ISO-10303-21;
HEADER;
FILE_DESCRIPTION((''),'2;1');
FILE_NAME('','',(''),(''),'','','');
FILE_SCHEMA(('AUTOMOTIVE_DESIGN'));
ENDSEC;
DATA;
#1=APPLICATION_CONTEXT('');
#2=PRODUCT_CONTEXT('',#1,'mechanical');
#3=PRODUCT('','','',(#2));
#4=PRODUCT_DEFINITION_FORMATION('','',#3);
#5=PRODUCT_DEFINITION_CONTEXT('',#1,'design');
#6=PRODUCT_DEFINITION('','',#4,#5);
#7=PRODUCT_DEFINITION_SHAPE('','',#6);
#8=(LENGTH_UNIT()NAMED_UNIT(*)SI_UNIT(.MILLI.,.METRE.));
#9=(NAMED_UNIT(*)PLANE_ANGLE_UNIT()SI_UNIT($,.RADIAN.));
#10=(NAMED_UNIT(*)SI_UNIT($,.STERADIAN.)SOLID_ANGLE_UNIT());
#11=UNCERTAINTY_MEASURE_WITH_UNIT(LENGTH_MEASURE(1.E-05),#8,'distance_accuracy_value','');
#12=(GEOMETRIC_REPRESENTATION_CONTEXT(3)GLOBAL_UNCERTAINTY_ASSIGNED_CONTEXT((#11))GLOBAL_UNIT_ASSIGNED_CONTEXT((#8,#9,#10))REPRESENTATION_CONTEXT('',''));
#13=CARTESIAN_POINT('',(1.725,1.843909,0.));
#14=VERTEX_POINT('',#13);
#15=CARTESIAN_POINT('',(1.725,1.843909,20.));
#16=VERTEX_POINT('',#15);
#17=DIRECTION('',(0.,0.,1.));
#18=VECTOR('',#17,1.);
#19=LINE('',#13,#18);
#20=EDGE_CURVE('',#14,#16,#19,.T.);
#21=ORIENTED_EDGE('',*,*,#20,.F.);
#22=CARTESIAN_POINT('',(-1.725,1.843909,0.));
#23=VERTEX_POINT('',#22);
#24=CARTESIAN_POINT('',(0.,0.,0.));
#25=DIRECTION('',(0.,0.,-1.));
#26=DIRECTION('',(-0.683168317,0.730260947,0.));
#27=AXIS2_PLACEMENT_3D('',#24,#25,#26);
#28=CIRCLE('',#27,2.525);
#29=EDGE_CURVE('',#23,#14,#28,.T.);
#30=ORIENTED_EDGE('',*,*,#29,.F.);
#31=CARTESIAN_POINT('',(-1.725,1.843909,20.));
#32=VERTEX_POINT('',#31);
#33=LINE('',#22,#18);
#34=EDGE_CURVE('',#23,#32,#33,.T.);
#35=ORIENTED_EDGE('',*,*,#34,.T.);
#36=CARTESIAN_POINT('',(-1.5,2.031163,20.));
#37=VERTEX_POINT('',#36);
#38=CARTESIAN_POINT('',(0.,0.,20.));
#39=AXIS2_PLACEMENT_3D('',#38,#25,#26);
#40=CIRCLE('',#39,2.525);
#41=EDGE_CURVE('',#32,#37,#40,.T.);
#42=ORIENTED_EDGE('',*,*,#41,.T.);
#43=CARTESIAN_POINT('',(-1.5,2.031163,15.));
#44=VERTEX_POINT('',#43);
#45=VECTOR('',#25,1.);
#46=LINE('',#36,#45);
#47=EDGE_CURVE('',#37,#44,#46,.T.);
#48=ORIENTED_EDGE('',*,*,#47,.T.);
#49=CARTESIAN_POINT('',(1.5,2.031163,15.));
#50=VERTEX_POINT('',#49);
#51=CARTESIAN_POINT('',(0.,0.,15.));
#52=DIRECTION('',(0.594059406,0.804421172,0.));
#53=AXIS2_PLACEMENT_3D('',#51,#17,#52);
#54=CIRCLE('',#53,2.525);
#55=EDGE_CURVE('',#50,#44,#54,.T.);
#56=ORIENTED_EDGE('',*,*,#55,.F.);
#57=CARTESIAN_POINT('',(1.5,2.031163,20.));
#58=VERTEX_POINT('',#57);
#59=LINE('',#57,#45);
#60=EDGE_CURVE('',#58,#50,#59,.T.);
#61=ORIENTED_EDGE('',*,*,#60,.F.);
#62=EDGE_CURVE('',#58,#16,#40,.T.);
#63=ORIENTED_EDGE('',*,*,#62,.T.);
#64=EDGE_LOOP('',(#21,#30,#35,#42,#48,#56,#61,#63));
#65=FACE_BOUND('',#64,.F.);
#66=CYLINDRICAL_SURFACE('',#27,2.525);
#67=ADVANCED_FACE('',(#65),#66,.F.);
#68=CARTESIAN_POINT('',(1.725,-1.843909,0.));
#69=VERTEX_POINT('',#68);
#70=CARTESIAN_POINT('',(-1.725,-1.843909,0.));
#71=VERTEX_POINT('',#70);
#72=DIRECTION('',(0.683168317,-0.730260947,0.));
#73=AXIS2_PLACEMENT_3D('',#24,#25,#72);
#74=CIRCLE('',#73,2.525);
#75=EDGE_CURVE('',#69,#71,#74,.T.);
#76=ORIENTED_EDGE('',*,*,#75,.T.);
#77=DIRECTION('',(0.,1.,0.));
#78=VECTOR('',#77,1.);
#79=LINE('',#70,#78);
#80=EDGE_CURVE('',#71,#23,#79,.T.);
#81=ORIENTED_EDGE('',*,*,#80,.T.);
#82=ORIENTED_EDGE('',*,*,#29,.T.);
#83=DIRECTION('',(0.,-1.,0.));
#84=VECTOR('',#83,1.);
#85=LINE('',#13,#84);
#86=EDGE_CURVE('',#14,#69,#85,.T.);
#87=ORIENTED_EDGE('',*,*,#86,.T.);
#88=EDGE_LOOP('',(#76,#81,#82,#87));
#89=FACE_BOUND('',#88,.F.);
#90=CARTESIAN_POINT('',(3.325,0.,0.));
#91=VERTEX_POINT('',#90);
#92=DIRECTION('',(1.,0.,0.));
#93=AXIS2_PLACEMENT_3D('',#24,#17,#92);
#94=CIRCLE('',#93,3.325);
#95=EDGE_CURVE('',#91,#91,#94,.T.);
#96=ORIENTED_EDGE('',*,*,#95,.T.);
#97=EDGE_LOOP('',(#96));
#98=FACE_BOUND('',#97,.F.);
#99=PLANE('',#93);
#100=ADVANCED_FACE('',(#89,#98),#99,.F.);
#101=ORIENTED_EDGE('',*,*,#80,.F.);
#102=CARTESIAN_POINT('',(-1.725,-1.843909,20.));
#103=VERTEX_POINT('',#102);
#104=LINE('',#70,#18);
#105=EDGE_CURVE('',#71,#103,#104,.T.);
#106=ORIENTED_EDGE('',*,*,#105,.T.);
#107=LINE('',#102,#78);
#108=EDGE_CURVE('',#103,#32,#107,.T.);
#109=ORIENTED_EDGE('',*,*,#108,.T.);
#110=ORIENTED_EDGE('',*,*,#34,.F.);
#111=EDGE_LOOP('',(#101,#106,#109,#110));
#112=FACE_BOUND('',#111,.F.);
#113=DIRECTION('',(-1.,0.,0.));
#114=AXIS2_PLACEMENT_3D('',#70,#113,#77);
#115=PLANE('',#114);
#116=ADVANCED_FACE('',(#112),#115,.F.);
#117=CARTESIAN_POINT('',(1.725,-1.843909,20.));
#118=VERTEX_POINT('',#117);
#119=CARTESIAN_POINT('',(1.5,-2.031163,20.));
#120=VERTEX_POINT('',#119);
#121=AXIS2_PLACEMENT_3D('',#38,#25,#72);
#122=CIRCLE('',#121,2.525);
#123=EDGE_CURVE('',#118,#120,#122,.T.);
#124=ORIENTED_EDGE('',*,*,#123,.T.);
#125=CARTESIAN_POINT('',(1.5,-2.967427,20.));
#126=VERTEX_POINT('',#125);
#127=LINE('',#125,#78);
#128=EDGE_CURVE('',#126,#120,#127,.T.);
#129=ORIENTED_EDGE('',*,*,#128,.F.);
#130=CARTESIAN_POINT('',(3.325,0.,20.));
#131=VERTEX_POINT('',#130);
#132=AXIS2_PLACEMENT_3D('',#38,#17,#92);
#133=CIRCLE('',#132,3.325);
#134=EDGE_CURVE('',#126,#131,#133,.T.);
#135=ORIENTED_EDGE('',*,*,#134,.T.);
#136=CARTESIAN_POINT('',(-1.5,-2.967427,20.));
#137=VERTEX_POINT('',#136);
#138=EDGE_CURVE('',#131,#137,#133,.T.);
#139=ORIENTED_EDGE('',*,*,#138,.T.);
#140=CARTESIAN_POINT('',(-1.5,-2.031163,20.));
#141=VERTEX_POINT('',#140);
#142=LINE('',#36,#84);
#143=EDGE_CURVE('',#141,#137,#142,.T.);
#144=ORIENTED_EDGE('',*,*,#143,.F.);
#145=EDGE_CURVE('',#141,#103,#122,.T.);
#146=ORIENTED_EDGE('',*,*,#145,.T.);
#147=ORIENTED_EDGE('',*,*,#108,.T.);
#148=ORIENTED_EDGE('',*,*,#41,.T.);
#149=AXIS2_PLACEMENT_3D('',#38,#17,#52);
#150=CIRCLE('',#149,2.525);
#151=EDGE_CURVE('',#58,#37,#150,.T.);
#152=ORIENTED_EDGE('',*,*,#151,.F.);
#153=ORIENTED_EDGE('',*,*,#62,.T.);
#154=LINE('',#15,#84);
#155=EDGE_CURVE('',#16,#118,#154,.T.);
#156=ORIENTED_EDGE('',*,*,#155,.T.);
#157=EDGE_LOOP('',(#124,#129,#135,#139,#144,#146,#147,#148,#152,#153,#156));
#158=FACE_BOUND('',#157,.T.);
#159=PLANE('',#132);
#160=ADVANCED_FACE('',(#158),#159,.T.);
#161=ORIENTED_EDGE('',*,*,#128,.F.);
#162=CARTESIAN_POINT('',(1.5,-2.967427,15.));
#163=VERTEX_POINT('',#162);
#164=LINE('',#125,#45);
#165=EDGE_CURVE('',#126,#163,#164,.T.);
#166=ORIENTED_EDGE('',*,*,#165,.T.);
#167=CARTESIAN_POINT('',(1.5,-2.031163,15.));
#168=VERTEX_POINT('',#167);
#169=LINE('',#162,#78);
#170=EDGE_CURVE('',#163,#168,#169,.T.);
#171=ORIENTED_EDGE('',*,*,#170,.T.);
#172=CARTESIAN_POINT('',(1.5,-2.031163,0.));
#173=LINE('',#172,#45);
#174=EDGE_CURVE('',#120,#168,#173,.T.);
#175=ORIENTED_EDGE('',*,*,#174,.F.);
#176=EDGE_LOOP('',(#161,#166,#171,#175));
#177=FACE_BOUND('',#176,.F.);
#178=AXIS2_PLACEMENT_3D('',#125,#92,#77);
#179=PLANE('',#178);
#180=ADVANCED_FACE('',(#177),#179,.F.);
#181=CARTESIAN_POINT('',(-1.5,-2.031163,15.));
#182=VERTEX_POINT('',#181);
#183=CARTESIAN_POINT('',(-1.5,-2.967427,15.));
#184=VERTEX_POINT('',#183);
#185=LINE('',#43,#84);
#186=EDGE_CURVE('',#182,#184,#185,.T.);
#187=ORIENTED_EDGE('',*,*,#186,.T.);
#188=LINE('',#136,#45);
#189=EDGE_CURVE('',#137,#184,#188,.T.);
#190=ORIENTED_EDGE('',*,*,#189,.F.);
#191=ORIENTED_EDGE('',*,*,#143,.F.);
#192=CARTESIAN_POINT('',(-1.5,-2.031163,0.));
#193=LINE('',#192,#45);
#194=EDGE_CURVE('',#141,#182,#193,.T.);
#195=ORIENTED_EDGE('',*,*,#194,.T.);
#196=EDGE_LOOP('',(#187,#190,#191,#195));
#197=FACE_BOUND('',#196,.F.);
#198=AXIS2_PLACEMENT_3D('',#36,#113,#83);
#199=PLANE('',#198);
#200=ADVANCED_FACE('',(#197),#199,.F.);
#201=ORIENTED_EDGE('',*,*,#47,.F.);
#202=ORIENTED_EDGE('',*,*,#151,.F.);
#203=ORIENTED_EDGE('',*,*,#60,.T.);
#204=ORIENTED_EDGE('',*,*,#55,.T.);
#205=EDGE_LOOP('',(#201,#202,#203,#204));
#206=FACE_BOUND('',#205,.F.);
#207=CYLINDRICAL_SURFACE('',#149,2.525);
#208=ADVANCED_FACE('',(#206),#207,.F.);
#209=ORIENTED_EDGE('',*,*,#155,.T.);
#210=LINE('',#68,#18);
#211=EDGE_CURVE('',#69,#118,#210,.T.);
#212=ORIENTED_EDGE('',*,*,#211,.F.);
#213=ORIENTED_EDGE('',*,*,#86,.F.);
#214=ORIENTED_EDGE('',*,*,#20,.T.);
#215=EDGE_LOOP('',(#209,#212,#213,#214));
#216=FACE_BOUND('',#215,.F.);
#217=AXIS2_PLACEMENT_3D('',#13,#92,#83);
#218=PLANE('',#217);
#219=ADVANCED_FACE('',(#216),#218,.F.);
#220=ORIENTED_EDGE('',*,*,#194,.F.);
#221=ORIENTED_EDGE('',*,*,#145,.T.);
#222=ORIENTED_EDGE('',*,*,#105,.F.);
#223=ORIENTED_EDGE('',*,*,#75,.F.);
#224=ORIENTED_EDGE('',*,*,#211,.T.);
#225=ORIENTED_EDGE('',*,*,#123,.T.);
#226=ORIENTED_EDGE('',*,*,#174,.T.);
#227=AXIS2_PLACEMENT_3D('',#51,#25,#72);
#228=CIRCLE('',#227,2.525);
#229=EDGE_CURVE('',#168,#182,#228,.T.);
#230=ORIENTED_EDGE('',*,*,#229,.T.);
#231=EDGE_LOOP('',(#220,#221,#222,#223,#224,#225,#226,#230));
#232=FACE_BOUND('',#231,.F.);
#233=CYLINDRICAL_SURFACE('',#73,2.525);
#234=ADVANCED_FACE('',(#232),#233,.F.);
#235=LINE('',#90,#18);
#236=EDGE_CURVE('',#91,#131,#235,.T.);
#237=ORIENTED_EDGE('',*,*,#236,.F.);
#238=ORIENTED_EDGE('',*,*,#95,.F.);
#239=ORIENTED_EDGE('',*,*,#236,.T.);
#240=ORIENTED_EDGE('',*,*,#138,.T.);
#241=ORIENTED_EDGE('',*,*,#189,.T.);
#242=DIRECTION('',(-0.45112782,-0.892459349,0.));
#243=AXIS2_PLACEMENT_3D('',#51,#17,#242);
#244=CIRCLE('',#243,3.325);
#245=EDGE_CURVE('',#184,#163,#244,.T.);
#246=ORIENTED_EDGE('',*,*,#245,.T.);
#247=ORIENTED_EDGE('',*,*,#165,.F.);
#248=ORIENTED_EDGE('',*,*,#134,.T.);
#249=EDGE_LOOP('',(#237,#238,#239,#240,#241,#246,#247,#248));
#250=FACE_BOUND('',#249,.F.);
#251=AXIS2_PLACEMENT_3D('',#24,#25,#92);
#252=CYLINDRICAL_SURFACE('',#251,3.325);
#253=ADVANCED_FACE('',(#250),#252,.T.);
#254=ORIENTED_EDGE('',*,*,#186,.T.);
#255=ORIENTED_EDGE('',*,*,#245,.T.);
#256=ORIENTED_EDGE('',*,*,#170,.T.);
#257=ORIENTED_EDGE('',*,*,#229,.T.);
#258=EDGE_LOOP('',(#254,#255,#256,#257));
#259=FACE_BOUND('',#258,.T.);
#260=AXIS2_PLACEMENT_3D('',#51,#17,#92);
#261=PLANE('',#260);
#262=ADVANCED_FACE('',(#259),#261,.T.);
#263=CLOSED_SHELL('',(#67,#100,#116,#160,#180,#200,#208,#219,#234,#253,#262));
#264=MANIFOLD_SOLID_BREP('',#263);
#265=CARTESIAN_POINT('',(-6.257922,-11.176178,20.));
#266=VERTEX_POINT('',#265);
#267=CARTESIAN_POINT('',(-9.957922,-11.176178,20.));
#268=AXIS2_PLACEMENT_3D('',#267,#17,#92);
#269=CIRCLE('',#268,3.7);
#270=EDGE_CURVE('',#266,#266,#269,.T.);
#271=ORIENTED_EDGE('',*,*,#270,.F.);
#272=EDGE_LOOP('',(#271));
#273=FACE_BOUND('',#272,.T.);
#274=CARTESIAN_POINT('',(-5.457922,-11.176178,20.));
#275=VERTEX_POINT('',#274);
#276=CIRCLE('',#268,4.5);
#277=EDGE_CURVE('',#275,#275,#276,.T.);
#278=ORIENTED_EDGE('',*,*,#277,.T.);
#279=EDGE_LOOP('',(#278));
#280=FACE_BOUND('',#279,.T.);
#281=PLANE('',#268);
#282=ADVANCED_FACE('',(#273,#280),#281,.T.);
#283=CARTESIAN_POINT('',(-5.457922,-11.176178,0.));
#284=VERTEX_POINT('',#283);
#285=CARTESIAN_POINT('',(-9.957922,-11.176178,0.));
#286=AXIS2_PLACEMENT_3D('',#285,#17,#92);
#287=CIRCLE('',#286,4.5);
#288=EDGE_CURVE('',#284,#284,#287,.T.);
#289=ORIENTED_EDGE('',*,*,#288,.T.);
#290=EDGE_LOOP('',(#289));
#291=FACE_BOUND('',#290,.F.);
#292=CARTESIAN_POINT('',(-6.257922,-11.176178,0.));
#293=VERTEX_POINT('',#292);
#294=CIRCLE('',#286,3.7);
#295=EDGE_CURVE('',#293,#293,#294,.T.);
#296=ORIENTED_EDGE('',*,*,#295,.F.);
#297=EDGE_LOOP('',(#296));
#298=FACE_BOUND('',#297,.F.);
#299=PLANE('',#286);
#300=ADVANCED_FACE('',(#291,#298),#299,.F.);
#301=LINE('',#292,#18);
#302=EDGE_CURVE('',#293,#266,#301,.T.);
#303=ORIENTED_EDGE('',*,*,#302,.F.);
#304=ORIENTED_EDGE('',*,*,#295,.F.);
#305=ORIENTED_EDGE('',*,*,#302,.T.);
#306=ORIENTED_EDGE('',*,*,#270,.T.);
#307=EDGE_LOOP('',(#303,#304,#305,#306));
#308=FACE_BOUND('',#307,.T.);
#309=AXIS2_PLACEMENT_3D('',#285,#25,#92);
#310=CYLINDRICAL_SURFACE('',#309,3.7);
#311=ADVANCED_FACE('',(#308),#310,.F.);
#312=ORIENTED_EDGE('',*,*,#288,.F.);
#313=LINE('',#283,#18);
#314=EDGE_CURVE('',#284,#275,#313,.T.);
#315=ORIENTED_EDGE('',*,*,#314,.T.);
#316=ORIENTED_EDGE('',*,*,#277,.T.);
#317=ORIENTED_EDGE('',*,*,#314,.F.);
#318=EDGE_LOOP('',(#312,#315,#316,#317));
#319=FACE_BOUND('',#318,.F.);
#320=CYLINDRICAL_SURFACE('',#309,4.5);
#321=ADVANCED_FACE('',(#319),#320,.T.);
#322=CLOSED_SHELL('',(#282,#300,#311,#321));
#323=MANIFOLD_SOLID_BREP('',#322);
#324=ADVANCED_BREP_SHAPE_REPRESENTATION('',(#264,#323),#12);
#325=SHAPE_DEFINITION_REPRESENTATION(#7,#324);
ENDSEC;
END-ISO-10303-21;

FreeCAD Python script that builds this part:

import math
import FreeCAD as App
import Part
import Sketcher
Q = App.Units.Quantity

doc = App.newDocument("Part")
params = doc.addObject("Spreadsheet::Sheet", "Params")
for row, (alias, value) in enumerate([
    ("sketch1_diameter", "6.65 mm"),
    ("pad1_length", "20 mm"),
    ("pocket1_length", "5 mm"),
    ("sketch3_diameter", "9 mm"),
    ("sketch3_diameter2", "7.4 mm"),
    ("pad2_length", "20 mm"),
], start=1):
    params.set(f"A{row}", alias)
    params.set(f"B{row}", "=" + value)
    params.setAlias(f"B{row}", alias)

body = doc.addObject("PartDesign::Body", "Body")

sketch1 = body.newObject("Sketcher::SketchObject", "Sketch")
sketch1.AttachmentSupport = (doc.getObject("XY_Plane"), [""])
sketch1.MapMode = "FlatFace"
sketch1.addGeometry(Part.Circle(App.Vector(0, 0, 0), App.Vector(0, 0, 1), 3.3), False)
sketch1.addGeometry(Part.ArcOfCircle(Part.Circle(App.Vector(0, 0, 0), App.Vector(0, 0, 1), 2.5), math.radians(47), math.radians(133)), False)
sketch1.addGeometry(Part.LineSegment(App.Vector(1.7, 1.8, 0), App.Vector(1.7, -1.8, 0)), False)
sketch1.addGeometry(Part.ArcOfCircle(Part.Circle(App.Vector(0, 0, 0), App.Vector(0, 0, 1), 2.5), math.radians(-133), math.radians(-47)), False)
sketch1.addGeometry(Part.LineSegment(App.Vector(-1.7, -1.8, 0), App.Vector(-1.7, 1.8, 0)), False)
sketch1.addConstraint(Sketcher.Constraint("Coincident", 1, 1, 2, 1))
sketch1.addConstraint(Sketcher.Constraint("Coincident", 2, 2, 3, 2))
sketch1.addConstraint(Sketcher.Constraint("Coincident", 3, 1, 4, 1))
sketch1.addConstraint(Sketcher.Constraint("Coincident", 4, 2, 1, 2))
sketch1.addConstraint(Sketcher.Constraint("Vertical", 2))
sketch1.addConstraint(Sketcher.Constraint("Vertical", 4))
sketch1.addConstraint(Sketcher.Constraint("Coincident", 0, 3, -1, 1))
sketch1.addConstraint(Sketcher.Constraint("Coincident", 1, 3, -1, 1))
sketch1.addConstraint(Sketcher.Constraint("Coincident", 3, 3, -1, 1))
sketch1.addConstraint(Sketcher.Constraint("Equal", 1, 3))
sketch1.addConstraint(Sketcher.Constraint("Horizontal", 2, 2, 3, 1))
sketch1.addConstraint(Sketcher.Constraint("Diameter", 0, Q("6.65 mm")))
sketch1.addConstraint(Sketcher.Constraint("Radius", 1, Q("2.525 mm")))
sketch1.addConstraint(Sketcher.Constraint("DistanceX", 3, 1, 2, 2, Q("3.45 mm")))
sketch1.setExpression("Constraints[11]", "Params.sketch1_diameter")
pad1 = body.newObject("PartDesign::Pad", "Pad")
pad1.Profile = sketch1
pad1.setExpression("Length", "Params.pad1_length")

sketch2 = body.newObject("Sketcher::SketchObject", "Sketch001")
sketch2.AttachmentSupport = (doc.getObject("XY_Plane"), [""])
sketch2.MapMode = "FlatFace"
sketch2.AttachmentOffset = App.Placement(App.Vector(0, 0, 20), App.Rotation())
sketch2.addGeometry(Part.LineSegment(App.Vector(-1.5, 2, 0), App.Vector(-1.5, -3, 0)), False)
sketch2.addGeometry(Part.ArcOfCircle(Part.Circle(App.Vector(0, 0, 0), App.Vector(0, 0, 1), 3.3), math.radians(-117), math.radians(-63)), False)
sketch2.addGeometry(Part.LineSegment(App.Vector(1.5, -3, 0), App.Vector(1.5, 2, 0)), False)
sketch2.addGeometry(Part.ArcOfCircle(Part.Circle(App.Vector(0, 0, 0), App.Vector(0, 0, 1), 2.5), math.radians(54), math.radians(126)), False)
sketch2.addConstraint(Sketcher.Constraint("Coincident", 0, 2, 1, 1))
sketch2.addConstraint(Sketcher.Constraint("Coincident", 1, 2, 2, 1))
sketch2.addConstraint(Sketcher.Constraint("Coincident", 2, 2, 3, 1))
sketch2.addConstraint(Sketcher.Constraint("Coincident", 3, 2, 0, 1))
sketch2.addConstraint(Sketcher.Constraint("Vertical", 0))
sketch2.addConstraint(Sketcher.Constraint("Vertical", 2))
sketch2.addConstraint(Sketcher.Constraint("Coincident", 1, 3, -1, 1))
sketch2.addConstraint(Sketcher.Constraint("Coincident", 3, 3, -1, 1))
sketch2.addConstraint(Sketcher.Constraint("Horizontal", 0, 2, 1, 2))
sketch2.addConstraint(Sketcher.Constraint("Radius", 1, Q("3.325 mm")))
sketch2.addConstraint(Sketcher.Constraint("Radius", 3, Q("2.525 mm")))
sketch2.addConstraint(Sketcher.Constraint("DistanceX", 0, 2, 1, 2, Q("3 mm")))
pocket1 = body.newObject("PartDesign::Pocket", "Pocket")
pocket1.Profile = sketch2
pocket1.setExpression("Length", "Params.pocket1_length")
body2 = doc.addObject("PartDesign::Body", "Body001")

sketch3 = body2.newObject("Sketcher::SketchObject", "Sketch002")
sketch3.AttachmentSupport = (doc.getObject("XY_Plane001"), [""])
sketch3.MapMode = "FlatFace"
sketch3.addGeometry(Part.Circle(App.Vector(-10, -11.2, 0), App.Vector(0, 0, 1), 4.5), False)
sketch3.addGeometry(Part.Circle(App.Vector(-10, -11.2, 0), App.Vector(0, 0, 1), 3.7), False)
sketch3.addConstraint(Sketcher.Constraint("Coincident", 1, 3, 0, 3))
sketch3.addConstraint(Sketcher.Constraint("Diameter", 0, Q("9 mm")))
sketch3.addConstraint(Sketcher.Constraint("Diameter", 1, Q("7.4 mm")))
sketch3.addConstraint(Sketcher.Constraint("DistanceX", 0, 3, -1, 1, Q("9.957922 mm")))
sketch3.addConstraint(Sketcher.Constraint("DistanceY", 0, 3, -1, 1, Q("11.176178 mm")))
sketch3.setExpression("Constraints[1]", "Params.sketch3_diameter")
sketch3.setExpression("Constraints[2]", "Params.sketch3_diameter2")
pad2 = body2.newObject("PartDesign::Pad", "Pad001")
pad2.Profile = sketch3
pad2.setExpression("Length", "Params.pad2_length")

doc.recompute()
